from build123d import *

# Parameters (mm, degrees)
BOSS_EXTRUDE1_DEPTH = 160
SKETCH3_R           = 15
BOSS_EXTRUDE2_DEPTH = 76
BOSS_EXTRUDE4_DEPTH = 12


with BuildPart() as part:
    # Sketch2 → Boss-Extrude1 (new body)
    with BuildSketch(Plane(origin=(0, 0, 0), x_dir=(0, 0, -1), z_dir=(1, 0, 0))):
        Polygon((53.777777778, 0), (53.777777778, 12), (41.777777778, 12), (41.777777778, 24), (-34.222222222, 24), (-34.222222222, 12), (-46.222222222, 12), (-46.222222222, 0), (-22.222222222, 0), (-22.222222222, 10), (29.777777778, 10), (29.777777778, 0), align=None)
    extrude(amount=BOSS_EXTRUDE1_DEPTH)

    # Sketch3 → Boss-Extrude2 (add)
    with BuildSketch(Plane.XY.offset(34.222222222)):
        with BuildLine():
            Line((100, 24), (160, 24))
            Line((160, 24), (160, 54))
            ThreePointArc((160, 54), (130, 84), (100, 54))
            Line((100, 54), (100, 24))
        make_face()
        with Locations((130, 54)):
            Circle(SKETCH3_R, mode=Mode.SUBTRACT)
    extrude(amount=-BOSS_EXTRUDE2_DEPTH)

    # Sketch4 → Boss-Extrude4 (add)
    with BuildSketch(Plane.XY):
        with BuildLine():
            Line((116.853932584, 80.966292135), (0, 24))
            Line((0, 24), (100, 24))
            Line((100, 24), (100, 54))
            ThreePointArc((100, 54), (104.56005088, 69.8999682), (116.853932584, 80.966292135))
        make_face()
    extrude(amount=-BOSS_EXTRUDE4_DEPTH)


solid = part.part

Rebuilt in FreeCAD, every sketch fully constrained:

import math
import FreeCAD as App
import Part
import Sketcher

V = App.Vector
Q = App.Units.Quantity


def add_polygon(sketch, points):
    """Adds a closed chain of lines whose ends are joined by coincident constraints."""
    first, n = sketch.GeometryCount, len(points)
    for a, b in zip(points, points[1:] + points[:1]):
        sketch.addGeometry(Part.LineSegment(App.Vector(*a, 0), App.Vector(*b, 0)), False)
    for i in range(n):
        sketch.addConstraint(Sketcher.Constraint("Coincident", first + i, 2, first + (i + 1) % n, 1))

doc = App.newDocument("Part")
body = doc.addObject("PartDesign::Body", "Body")

# Sketch on YZ plane
sketch1 = body.newObject("Sketcher::SketchObject", "Sketch")
sketch1.AttachmentSupport = (doc.getObject("YZ_Plane"), [""])
sketch1.MapMode = "FlatFace"
add_polygon(sketch1, [(0, -54), (12, -54), (12, -42), (24, -42), (24, 34), (12, 34), (12, 46), (0, 46), (0, 22), (10, 22), (10, -30), (0, -30)])  # lines 0-11
sketch1.addConstraint([
    Sketcher.Constraint("Horizontal", 0),
    Sketcher.Constraint("Vertical", 1),
    Sketcher.Constraint("Horizontal", 2),
    Sketcher.Constraint("Vertical", 3),
    Sketcher.Constraint("Horizontal", 4),
    Sketcher.Constraint("Vertical", 5),
    Sketcher.Constraint("Horizontal", 6),
    Sketcher.Constraint("Vertical", 7),
    Sketcher.Constraint("Horizontal", 8),
    Sketcher.Constraint("Vertical", 9),
    Sketcher.Constraint("Horizontal", 10),
    Sketcher.Constraint("Vertical", 11),
    Sketcher.Constraint("PointOnObject", 6, 2, -2),
    Sketcher.Constraint("PointOnObject", 10, 2, -2),
    Sketcher.Constraint("Vertical", 1, 2, 4, 2),
    Sketcher.Constraint("Equal", 0, 2),
    Sketcher.Constraint("Equal", 6, 1),
    Sketcher.Constraint("Equal", 1, 5),
    Sketcher.Constraint("Equal", 7, 11),
    Sketcher.Constraint("DistanceX", 0, 1, 0, 2, Q("12 mm")),
    Sketcher.Constraint("DistanceX", 8, 1, 8, 2, Q("10 mm")),
    Sketcher.Constraint("DistanceY", 3, 1, 3, 2, Q("76 mm")),
    Sketcher.Constraint("DistanceY", 7, 2, 7, 1, Q("24 mm")),
    Sketcher.Constraint("DistanceY", 0, 2, -1, 1, Q("53.777778 mm")),
])
pad1 = body.newObject("PartDesign::Pad", "Pad")
pad1.Profile = sketch1
pad1.Length = 160

# Sketch on XY plane
sketch2 = body.newObject("Sketcher::SketchObject", "Sketch001")
sketch2.AttachmentSupport = (doc.getObject("XY_Plane"), [""])
sketch2.MapMode = "FlatFace"
sketch2.AttachmentOffset = App.Placement(V(0, 0, 34.222222), App.Rotation())
sketch2.addGeometry([
    Part.LineSegment(V(100, 24, 0), V(160, 24, 0)),  # 0
    Part.LineSegment(V(160, 24, 0), V(160, 54, 0)),  # 1
    Part.ArcOfCircle(Part.Circle(V(130, 54, 0), V(0, 0, 1), 30), math.radians(0), math.radians(180)),  # 2
    Part.LineSegment(V(100, 54, 0), V(100, 24, 0)),  # 3
    Part.Circle(V(130, 54, 0), V(0, 0, 1), 15),  # 4
], False)
sketch2.addConstraint([
    Sketcher.Constraint("Coincident", 0, 2, 1, 1),
    Sketcher.Constraint("Tangent", 1, 2, 2, 1),
    Sketcher.Constraint("Tangent", 2, 2, 3, 1),
    Sketcher.Constraint("Coincident", 3, 2, 0, 1),
    Sketcher.Constraint("Horizontal", 0),
    Sketcher.Constraint("Vertical", 1),
    Sketcher.Constraint("Vertical", 3),
    Sketcher.Constraint("Coincident", 4, 3, 2, 3),
    Sketcher.Constraint("Diameter", 4, Q("30 mm")),
    Sketcher.Constraint("Radius", 2, Q("30 mm")),
    Sketcher.Constraint("DistanceY", 1, 1, 1, 2, Q("30 mm")),
    Sketcher.Constraint("DistanceX", -1, 1, 2, 3, Q("130 mm")),
    Sketcher.Constraint("DistanceY", -1, 1, 2, 3, Q("54 mm")),
])
pad2 = body.newObject("PartDesign::Pad", "Pad001")
pad2.Profile = sketch2
pad2.Length = 76
pad2.Reversed = True

# Sketch on XY plane
sketch3 = body.newObject("Sketcher::SketchObject", "Sketch002")
sketch3.AttachmentSupport = (doc.getObject("XY_Plane"), [""])
sketch3.MapMode = "FlatFace"
sketch3.addGeometry([
    Part.LineSegment(V(117, 81, 0), V(0, 24, 0)),
    Part.LineSegment(V(0, 24, 0), V(100, 24, 0)),
    Part.LineSegment(V(100, 24, 0), V(100, 54, 0)),
    Part.ArcOfCircle(Part.Circle(V(130, 54, 0), V(0, 0, 1), 30), math.radians(116), math.radians(180)),
], False)
sketch3.addConstraint([
    Sketcher.Constraint("Coincident", 0, 2, 1, 1),
    Sketcher.Constraint("Coincident", 1, 2, 2, 1),
    Sketcher.Constraint("Tangent", 2, 2, 3, 2),
    Sketcher.Constraint("Tangent", 3, 1, 0, 1),
    Sketcher.Constraint("Horizontal", 1),
    Sketcher.Constraint("Vertical", 2),
    Sketcher.Constraint("PointOnObject", 0, 2, -2),
    Sketcher.Constraint("Radius", 3, Q("30 mm")),
    Sketcher.Constraint("DistanceX", 1, 1, 1, 2, Q("100 mm")),
    Sketcher.Constraint("DistanceY", 2, 1, 2, 2, Q("30 mm")),
    Sketcher.Constraint("DistanceY", -1, 1, 3, 3, Q("54 mm")),
])
pad3 = body.newObject("PartDesign::Pad", "Pad002")
pad3.Profile = sketch3
pad3.Length = 12
pad3.Reversed = True

doc.recompute()
